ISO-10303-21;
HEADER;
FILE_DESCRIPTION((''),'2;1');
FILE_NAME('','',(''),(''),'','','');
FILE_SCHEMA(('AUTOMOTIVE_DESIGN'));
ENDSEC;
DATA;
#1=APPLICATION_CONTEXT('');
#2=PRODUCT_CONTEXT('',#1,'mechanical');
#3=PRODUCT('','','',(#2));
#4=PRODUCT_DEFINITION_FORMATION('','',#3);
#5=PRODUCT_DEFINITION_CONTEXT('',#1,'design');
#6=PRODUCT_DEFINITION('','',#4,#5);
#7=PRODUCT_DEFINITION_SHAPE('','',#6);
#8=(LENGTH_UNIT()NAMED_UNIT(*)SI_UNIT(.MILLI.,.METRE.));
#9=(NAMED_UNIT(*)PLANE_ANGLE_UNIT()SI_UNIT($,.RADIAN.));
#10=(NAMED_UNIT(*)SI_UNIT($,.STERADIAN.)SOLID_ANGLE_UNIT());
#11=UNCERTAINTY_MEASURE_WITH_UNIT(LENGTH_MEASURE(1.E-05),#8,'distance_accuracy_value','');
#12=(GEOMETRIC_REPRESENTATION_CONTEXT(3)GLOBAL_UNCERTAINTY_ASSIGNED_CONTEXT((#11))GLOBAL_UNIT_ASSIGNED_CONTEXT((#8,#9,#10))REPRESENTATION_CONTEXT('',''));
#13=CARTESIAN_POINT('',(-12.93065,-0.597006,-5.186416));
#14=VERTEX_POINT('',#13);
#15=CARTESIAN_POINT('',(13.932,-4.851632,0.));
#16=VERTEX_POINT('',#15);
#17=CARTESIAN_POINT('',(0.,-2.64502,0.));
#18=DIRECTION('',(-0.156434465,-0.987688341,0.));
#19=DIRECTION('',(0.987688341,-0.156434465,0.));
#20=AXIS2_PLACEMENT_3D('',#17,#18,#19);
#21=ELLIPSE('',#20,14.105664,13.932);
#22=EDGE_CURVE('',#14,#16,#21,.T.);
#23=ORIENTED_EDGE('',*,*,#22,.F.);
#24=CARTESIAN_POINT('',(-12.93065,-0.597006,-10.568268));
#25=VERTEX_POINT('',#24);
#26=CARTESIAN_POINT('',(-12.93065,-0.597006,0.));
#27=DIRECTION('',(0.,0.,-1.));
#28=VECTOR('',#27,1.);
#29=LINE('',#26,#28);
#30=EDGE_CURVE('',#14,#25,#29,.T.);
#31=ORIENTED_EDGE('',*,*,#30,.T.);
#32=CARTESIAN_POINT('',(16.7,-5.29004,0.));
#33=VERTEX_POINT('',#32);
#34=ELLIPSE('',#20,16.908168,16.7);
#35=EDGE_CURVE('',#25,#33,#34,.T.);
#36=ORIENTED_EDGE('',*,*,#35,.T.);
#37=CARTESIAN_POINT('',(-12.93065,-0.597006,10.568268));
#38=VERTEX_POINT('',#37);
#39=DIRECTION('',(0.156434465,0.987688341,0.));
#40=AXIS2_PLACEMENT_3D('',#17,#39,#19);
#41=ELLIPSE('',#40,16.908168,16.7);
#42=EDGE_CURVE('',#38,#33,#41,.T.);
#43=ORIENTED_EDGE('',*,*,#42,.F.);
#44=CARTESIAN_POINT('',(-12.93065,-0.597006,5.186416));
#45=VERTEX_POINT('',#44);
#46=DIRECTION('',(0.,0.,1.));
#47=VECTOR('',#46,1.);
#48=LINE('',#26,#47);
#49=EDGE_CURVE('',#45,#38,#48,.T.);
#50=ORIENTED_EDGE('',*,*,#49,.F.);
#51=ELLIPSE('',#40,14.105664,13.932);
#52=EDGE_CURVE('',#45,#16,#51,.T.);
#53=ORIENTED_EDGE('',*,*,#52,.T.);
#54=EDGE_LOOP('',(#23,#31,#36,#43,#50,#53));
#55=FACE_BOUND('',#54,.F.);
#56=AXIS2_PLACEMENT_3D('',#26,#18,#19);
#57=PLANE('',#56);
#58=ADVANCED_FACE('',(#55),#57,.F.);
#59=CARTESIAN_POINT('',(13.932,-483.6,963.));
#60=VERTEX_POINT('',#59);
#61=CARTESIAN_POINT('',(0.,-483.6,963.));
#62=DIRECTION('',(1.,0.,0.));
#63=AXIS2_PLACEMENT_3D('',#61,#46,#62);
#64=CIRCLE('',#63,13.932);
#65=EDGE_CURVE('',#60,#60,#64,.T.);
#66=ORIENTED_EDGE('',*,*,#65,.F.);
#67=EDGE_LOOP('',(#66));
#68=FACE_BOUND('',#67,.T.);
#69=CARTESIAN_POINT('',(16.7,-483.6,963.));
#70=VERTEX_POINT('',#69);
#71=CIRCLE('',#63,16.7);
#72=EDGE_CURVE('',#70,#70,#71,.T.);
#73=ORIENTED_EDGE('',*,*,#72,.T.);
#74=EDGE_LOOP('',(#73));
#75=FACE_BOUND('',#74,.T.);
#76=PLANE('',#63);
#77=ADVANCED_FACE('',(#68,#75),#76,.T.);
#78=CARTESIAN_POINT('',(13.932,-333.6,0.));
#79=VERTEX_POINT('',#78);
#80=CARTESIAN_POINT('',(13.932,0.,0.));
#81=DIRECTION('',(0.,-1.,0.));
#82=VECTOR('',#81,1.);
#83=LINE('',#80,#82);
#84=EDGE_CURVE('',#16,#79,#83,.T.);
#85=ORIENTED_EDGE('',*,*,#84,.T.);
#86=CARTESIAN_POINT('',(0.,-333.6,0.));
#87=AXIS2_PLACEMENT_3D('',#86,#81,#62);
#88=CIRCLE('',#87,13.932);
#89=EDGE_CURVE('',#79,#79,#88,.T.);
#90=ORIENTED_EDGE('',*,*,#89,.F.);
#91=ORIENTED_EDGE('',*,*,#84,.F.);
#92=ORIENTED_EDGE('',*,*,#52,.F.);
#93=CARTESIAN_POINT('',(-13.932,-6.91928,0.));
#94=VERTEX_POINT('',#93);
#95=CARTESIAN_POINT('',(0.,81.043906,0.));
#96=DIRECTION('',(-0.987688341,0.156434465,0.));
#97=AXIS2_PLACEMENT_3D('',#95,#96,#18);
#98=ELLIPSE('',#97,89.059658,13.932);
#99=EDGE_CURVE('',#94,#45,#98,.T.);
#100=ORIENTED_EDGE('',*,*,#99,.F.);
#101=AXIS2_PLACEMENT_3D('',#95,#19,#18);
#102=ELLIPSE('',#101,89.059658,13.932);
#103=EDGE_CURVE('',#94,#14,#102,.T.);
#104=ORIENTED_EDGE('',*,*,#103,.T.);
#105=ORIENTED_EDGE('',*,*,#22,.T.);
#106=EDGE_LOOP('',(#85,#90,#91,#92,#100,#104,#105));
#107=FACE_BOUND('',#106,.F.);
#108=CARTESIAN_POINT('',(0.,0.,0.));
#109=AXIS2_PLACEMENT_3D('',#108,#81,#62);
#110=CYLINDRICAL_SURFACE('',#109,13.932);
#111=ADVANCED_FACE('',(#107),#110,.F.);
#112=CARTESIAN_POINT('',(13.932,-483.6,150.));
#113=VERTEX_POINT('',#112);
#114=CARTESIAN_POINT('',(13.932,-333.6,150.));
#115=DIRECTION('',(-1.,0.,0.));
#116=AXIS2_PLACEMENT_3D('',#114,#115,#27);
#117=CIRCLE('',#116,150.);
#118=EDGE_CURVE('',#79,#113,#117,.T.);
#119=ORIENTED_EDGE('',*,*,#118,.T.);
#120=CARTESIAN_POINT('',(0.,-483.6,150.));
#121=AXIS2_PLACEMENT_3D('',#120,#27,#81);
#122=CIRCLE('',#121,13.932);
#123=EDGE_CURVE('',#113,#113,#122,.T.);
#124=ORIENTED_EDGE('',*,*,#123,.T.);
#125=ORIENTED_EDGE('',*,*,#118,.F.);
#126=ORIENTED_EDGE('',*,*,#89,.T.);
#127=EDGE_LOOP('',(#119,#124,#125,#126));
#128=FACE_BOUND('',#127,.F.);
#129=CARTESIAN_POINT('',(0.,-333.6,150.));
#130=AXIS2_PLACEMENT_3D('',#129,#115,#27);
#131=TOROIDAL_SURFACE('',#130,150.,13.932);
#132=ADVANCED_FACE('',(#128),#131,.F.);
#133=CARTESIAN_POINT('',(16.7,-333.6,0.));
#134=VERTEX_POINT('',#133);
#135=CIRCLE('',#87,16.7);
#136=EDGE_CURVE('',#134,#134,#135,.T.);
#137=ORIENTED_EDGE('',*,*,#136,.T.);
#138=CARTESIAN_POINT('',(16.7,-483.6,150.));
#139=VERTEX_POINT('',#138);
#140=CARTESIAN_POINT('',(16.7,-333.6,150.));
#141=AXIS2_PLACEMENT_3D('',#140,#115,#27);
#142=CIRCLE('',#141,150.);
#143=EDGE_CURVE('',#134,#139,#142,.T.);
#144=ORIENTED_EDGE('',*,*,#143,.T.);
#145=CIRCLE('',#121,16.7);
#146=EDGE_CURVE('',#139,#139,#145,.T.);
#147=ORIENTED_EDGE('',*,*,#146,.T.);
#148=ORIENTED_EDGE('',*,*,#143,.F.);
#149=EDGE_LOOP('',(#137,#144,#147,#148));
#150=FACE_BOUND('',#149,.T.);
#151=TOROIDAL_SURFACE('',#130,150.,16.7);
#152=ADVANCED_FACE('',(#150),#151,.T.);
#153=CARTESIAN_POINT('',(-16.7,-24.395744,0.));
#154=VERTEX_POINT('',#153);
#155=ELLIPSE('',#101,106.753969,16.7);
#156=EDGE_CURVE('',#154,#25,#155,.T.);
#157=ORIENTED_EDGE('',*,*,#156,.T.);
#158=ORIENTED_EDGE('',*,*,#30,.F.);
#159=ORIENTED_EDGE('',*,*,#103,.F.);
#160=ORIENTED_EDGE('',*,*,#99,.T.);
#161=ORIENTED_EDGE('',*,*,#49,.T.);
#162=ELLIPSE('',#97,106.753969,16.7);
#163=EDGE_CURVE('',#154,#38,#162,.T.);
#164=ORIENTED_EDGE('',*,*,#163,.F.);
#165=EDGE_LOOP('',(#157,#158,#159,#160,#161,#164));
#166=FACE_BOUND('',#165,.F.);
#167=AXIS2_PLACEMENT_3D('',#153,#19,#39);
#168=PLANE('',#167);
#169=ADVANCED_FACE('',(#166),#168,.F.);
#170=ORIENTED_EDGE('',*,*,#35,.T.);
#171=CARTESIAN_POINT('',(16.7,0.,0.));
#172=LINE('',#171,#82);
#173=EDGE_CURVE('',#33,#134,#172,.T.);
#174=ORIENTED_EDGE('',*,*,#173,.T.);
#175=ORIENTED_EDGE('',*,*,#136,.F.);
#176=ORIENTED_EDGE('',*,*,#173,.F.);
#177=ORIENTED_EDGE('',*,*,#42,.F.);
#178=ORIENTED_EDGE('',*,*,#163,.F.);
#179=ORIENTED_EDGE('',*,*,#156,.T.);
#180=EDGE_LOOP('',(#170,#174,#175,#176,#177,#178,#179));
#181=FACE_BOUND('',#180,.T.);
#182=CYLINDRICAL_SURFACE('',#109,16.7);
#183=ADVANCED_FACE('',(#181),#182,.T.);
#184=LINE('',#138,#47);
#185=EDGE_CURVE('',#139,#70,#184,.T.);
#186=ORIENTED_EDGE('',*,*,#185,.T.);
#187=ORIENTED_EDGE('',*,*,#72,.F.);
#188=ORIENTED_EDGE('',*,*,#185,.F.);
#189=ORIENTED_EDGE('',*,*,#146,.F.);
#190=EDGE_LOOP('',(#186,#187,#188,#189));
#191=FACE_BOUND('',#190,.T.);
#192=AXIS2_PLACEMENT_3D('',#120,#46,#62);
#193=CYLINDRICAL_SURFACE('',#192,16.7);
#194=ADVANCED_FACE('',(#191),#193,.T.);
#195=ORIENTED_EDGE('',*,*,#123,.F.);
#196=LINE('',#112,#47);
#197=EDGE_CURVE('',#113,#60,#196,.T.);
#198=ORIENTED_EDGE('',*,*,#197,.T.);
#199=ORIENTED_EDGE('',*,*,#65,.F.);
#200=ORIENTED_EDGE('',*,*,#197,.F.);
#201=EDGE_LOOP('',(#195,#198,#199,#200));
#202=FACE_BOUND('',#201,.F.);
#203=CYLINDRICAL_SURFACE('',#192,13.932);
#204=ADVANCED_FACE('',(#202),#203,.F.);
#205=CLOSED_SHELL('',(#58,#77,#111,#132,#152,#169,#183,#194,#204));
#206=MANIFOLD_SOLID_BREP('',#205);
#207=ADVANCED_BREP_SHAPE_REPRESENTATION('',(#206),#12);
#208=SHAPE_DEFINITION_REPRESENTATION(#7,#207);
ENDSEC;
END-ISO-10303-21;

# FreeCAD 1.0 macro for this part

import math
import FreeCAD as App
import Part
import Sketcher
from FreeCAD import Vector
Q = App.Units.Quantity


def add_polygon(sketch, points):
    """Adds a closed chain of lines whose ends are joined by coincident constraints."""
    first, n = sketch.GeometryCount, len(points)
    for a, b in zip(points, points[1:] + points[:1]):
        sketch.addGeometry(Part.LineSegment(App.Vector(*a, 0), App.Vector(*b, 0)), False)
    for i in range(n):
        sketch.addConstraint(Sketcher.Constraint("Coincident", first + i, 2, first + (i + 1) % n, 1))

doc = App.newDocument("Part")
params = doc.addObject("Spreadsheet::Sheet", "Params")
for row, (alias, value) in enumerate([
    ("sketch1_diameter", "33.4 mm"),
    ("sketch2_radius", "150 mm"),
    ("sketch2_height", "813 mm"),
    ("sketch2_width", "333.6 mm"),
    ("sketch3_length", "30 mm"),
    ("sketch3_width", "16.7 mm"),
], start=1):
    params.set(f"A{row}", alias)
    params.set(f"B{row}", "=" + value)
    params.setAlias(f"B{row}", alias)

body = doc.addObject("PartDesign::Body", "Body")

# Sketch on XZ plane
sketch1 = body.newObject("Sketcher::SketchObject", "Sketch")
sketch1.AttachmentSupport = (doc.getObject("XZ_Plane"), [""])
sketch1.MapMode = "FlatFace"
sketch1.addGeometry([
    Part.Circle(Vector(0, 0, 0), Vector(0, 0, 1), 16.7),
    Part.Circle(Vector(0, 0, 0), Vector(0, 0, 1), 13.932),
], False)
sketch1.addConstraint([
    Sketcher.Constraint("Coincident", 0, 3, -1, 1),
    Sketcher.Constraint("Coincident", 1, 3, -1, 1),
    Sketcher.Constraint("Diameter", 0, 33.4),
    Sketcher.Constraint("Diameter", 1, 27.864),
])
sketch1.setExpression("Constraints[2]", "Params.sketch1_diameter")

# Sketch on YZ plane
sketch2 = body.newObject("Sketcher::SketchObject", "Sketch001")
sketch2.AttachmentSupport = (doc.getObject("YZ_Plane"), [""])
sketch2.MapMode = "FlatFace"
sketch2.addGeometry([
    Part.LineSegment(Vector(0, 0, 0), Vector(-333.6, 0, 0)),
    Part.ArcOfCircle(Part.Circle(Vector(-333.6, 150, 0), Vector(0, 0, 1), 150), math.radians(180), math.radians(270)),
    Part.LineSegment(Vector(-483.6, 150, 0), Vector(-483.6, 963, 0)),
], False)
sketch2.addConstraint([
    Sketcher.Constraint("Tangent", 0, 2, 1, 2),
    Sketcher.Constraint("Tangent", 1, 1, 2, 1),
    Sketcher.Constraint("Horizontal", 0),
    Sketcher.Constraint("Vertical", 2),
    Sketcher.Constraint("Coincident", 0, 1, -1, 1),
    Sketcher.Constraint("Radius", 1, 150.0),
    Sketcher.Constraint("DistanceY", 2, 1, 2, 2, 813.0),
    Sketcher.Constraint("DistanceX", 0, 2, 0, 1, 333.6),
])
sketch2.setExpression("Constraints[5]", "Params.sketch2_radius")
sketch2.setExpression("Constraints[6]", "Params.sketch2_height")
sketch2.setExpression("Constraints[7]", "Params.sketch2_width")
doc.recompute()

additivepipe = body.newObject("PartDesign::AdditivePipe", "AdditivePipe")
additivepipe.Profile = sketch1
additivepipe.Spine = (sketch2, ["Edge1", "Edge2", "Edge3"])

# Sketch on XY plane
sketch3 = body.newObject("Sketcher::SketchObject", "Sketch002")
sketch3.AttachmentSupport = (doc.getObject("XY_Plane"), [""])
sketch3.MapMode = "FlatFace"
add_polygon(sketch3, [(16.7, 0), (0, 0), (-16.7, 2.64502), (-16.7, -24.395744), (-12.93065, -0.597006), (16.7, -5.29004)])  # lines 0-5
sketch3.addConstraint([
    Sketcher.Constraint("Horizontal", 0),
    Sketcher.Constraint("Vertical", 2),
    Sketcher.Constraint("Vertical", 5),
    Sketcher.Constraint("Coincident", 0, 2, -1, 1),
    Sketcher.Constraint("Perpendicular", 1, 3),
    Sketcher.Constraint("Perpendicular", 3, 4),
    Sketcher.Constraint("Angle", 1, Q("171 deg")),
    Sketcher.Constraint("Distance", 4, 30.0),
    Sketcher.Constraint("DistanceX", 0, 2, 0, 1, 16.7),
    Sketcher.Constraint("DistanceX", 1, 2, -1, 1, 16.7),
    Sketcher.Constraint("DistanceY", 5, 1, 5, 2, 5.29004),
])
sketch3.setExpression("Constraints[13]", "Params.sketch3_length")
sketch3.setExpression("Constraints[14]", "Params.sketch3_width")
pocket1 = body.newObject("PartDesign::Pocket", "Pocket")
pocket1.Profile = sketch3
pocket1.Type = "ThroughAll"
pocket1.Midplane = True

doc.recompute()
